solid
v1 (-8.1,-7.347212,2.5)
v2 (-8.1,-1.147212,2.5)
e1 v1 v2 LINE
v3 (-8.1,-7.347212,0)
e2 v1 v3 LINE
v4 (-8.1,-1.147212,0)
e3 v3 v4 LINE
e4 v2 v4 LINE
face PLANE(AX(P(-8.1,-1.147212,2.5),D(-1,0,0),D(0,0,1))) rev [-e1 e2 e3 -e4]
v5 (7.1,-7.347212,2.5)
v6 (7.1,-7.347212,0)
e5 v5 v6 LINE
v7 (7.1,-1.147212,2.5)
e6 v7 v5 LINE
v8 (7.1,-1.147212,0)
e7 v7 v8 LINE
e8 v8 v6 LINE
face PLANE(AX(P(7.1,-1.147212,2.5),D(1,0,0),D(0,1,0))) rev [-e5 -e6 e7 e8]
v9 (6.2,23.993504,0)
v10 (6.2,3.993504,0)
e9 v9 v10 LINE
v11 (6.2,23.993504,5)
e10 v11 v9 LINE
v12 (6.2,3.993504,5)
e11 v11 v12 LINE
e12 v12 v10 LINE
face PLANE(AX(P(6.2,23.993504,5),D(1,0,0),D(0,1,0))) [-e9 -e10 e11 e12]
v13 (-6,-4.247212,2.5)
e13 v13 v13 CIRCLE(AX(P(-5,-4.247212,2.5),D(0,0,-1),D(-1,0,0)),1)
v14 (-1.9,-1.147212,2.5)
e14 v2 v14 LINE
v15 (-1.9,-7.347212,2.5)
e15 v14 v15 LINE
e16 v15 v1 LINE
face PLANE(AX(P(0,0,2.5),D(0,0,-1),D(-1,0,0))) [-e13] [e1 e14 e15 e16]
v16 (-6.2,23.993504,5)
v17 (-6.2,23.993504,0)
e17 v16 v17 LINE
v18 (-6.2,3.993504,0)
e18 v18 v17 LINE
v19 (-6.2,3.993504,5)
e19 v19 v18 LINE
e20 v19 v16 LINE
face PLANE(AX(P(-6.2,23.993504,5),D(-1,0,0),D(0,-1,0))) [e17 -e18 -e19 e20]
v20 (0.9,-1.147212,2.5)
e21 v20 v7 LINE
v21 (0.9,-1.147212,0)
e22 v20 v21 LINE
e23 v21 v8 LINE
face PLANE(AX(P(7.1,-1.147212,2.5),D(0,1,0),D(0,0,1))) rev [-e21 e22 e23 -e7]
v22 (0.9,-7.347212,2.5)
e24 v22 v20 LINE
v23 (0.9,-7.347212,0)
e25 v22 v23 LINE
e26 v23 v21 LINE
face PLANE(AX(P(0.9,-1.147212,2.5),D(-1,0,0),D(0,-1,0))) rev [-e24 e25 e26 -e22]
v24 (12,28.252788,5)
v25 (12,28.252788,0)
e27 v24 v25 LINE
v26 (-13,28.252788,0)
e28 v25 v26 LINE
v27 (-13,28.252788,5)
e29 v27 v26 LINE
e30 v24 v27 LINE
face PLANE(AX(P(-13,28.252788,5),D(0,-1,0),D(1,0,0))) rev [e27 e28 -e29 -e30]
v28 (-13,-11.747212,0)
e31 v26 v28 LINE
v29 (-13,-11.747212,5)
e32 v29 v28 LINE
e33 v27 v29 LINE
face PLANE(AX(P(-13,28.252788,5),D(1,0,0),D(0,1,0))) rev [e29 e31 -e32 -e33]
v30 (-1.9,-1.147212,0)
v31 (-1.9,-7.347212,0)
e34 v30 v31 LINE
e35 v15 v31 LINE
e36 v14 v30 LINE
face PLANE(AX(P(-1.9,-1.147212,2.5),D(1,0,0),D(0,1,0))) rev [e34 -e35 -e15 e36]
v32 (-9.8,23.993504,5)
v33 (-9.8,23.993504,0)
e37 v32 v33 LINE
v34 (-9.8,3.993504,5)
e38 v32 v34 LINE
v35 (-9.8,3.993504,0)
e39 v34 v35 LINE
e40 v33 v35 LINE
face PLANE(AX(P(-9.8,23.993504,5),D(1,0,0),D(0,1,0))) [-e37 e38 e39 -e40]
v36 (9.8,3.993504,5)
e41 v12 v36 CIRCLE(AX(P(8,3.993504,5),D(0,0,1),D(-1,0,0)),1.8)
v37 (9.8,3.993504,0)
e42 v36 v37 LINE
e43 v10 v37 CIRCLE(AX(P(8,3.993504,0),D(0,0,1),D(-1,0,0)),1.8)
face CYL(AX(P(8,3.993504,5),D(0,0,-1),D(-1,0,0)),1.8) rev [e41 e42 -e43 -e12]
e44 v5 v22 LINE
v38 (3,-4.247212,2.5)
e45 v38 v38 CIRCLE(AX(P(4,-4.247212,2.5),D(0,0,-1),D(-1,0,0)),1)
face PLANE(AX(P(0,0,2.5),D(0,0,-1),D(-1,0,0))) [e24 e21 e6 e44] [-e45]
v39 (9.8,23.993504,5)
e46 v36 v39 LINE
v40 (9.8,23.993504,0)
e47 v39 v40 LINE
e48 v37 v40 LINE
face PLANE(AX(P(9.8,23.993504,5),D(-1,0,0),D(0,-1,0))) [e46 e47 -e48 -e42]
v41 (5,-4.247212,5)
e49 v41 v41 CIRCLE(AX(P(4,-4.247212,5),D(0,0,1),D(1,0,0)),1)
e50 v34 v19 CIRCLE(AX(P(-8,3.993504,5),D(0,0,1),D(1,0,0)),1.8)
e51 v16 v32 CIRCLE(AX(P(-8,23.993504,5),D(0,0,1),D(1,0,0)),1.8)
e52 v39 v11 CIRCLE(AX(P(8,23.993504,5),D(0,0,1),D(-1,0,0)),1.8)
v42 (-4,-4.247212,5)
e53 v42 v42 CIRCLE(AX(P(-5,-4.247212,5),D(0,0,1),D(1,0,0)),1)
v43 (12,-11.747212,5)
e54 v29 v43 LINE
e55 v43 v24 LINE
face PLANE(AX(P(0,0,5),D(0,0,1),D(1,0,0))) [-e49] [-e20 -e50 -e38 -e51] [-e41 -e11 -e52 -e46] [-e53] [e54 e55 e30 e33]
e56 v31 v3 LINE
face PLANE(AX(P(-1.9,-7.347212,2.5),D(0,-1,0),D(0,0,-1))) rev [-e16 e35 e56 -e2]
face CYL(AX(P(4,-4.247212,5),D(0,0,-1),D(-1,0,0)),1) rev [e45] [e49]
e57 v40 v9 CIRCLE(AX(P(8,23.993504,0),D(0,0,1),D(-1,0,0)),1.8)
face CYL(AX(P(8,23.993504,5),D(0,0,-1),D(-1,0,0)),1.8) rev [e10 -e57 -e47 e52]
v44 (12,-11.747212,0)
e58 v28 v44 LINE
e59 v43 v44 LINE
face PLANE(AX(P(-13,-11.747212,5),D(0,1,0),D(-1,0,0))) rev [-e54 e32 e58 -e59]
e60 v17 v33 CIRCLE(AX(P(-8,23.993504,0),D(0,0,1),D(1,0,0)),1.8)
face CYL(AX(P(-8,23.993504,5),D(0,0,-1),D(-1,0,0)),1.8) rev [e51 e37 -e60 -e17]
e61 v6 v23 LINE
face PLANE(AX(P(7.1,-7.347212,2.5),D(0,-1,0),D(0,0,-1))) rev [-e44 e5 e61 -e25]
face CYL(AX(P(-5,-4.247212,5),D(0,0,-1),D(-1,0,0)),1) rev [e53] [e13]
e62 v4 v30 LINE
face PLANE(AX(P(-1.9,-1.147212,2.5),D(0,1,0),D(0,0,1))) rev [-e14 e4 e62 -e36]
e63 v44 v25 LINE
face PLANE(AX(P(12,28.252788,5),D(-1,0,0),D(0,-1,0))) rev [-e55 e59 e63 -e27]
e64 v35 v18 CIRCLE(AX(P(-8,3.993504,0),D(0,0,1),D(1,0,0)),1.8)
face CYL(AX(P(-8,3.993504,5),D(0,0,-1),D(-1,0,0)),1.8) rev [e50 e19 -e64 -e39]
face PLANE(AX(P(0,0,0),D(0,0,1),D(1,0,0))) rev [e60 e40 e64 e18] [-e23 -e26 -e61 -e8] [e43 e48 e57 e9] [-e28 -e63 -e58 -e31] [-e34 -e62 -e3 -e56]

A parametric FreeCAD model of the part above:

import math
import FreeCAD as App
import Part
import Sketcher
Q = App.Units.Quantity


def add_polygon(sketch, points):
    """Adds a closed chain of lines whose ends are joined by coincident constraints."""
    first, n = sketch.GeometryCount, len(points)
    for a, b in zip(points, points[1:] + points[:1]):
        sketch.addGeometry(Part.LineSegment(App.Vector(*a, 0), App.Vector(*b, 0)), False)
    for i in range(n):
        sketch.addConstraint(Sketcher.Constraint("Coincident", first + i, 2, first + (i + 1) % n, 1))

doc = App.newDocument("Part")
body = doc.addObject("PartDesign::Body", "Body")

# Sketch on XY plane
sketch1 = body.newObject("Sketcher::SketchObject", "Sketch")
sketch1.AttachmentSupport = (doc.getObject("XY_Plane"), [""])
sketch1.MapMode = "FlatFace"
add_polygon(sketch1, [(-13, 28.3), (-13, -11.7), (12, -11.7), (12, 28.3)])  # lines 0-3
sketch1.addGeometry(Part.Circle(App.Vector(-5, -4.2, 0), App.Vector(0, 0, 1), 1), False)  # 4
sketch1.addGeometry(Part.Circle(App.Vector(4, -4.2, 0), App.Vector(0, 0, 1), 1), False)  # 5
sketch1.addGeometry(Part.ArcOfCircle(Part.Circle(App.Vector(-8, 24, 0), App.Vector(0, 0, 1), 1.8), math.radians(0), math.radians(180)), False)  # 6
sketch1.addGeometry(Part.LineSegment(App.Vector(-6.2, 24, 0), App.Vector(-6.2, 4, 0)), False)  # 7
sketch1.addGeometry(Part.ArcOfCircle(Part.Circle(App.Vector(-8, 4, 0), App.Vector(0, 0, 1), 1.8), math.radians(180), math.radians(360)), False)  # 8
sketch1.addGeometry(Part.LineSegment(App.Vector(-9.8, 4, 0), App.Vector(-9.8, 24, 0)), False)  # 9
sketch1.addGeometry(Part.LineSegment(App.Vector(6.2, 4, 0), App.Vector(6.2, 24, 0)), False)  # 10
sketch1.addGeometry(Part.ArcOfCircle(Part.Circle(App.Vector(8, 24, 0), App.Vector(0, 0, 1), 1.8), math.radians(0), math.radians(180)), False)  # 11
sketch1.addGeometry(Part.LineSegment(App.Vector(9.8, 24, 0), App.Vector(9.8, 4, 0)), False)  # 12
sketch1.addGeometry(Part.ArcOfCircle(Part.Circle(App.Vector(8, 4, 0), App.Vector(0, 0, 1), 1.8), math.radians(180), math.radians(360)), False)  # 13
sketch1.addConstraint([
    Sketcher.Constraint("Tangent", 6, 1, 7, 1),
    Sketcher.Constraint("Tangent", 7, 2, 8, 2),
    Sketcher.Constraint("Tangent", 8, 1, 9, 1),
    Sketcher.Constraint("Tangent", 9, 2, 6, 2),
    Sketcher.Constraint("Tangent", 10, 2, 11, 2),
    Sketcher.Constraint("Tangent", 11, 1, 12, 1),
    Sketcher.Constraint("Tangent", 12, 2, 13, 2),
    Sketcher.Constraint("Tangent", 13, 1, 10, 1),
    Sketcher.Constraint("Vertical", 0),
    Sketcher.Constraint("Horizontal", 1),
    Sketcher.Constraint("Vertical", 2),
    Sketcher.Constraint("Horizontal", 3),
    Sketcher.Constraint("Vertical", 7),
    Sketcher.Constraint("Vertical", 9),
    Sketcher.Constraint("Vertical", 10),
    Sketcher.Constraint("Vertical", 12),
    Sketcher.Constraint("Equal", 4, 5),
    Sketcher.Constraint("Equal", 8, 11),
    Sketcher.Constraint("Symmetric", 6, 3, 11, 3, -2),
    Sketcher.Constraint("Horizontal", 4, 3, 5, 3),
    Sketcher.Constraint("Horizontal", 8, 3, 13, 3),
    Sketcher.Constraint("Diameter", 4, Q("2 mm")),
    Sketcher.Constraint("Radius", 6, Q("1.8 mm")),
    Sketcher.Constraint("DistanceX", 1, 1, 1, 2, Q("25 mm")),
    Sketcher.Constraint("DistanceY", 0, 2, 0, 1, Q("40 mm")),
    Sketcher.Constraint("DistanceY", 7, 2, 7, 1, Q("20 mm")),
    Sketcher.Constraint("DistanceX", 4, 3, -1, 1, Q("5 mm")),
    Sketcher.Constraint("DistanceX", -1, 1, 5, 3, Q("4 mm")),
    Sketcher.Constraint("DistanceX", 6, 3, -1, 1, Q("8 mm")),
    Sketcher.Constraint("DistanceX", 0, 2, -1, 1, Q("13 mm")),
    Sketcher.Constraint("DistanceY", 0, 2, 4, 3, Q("7.5 mm")),
    Sketcher.Constraint("DistanceY", 4, 3, -1, 1, Q("4.247212 mm")),
    Sketcher.Constraint("DistanceY", -1, 1, 6, 3, Q("23.993504 mm")),
])
pad1 = body.newObject("PartDesign::Pad", "Pad")
pad1.Profile = sketch1
pad1.Length = 5

# Sketch on XY plane
sketch2 = body.newObject("Sketcher::SketchObject", "Sketch001")
sketch2.AttachmentSupport = (doc.getObject("XY_Plane"), [""])
sketch2.MapMode = "FlatFace"
add_polygon(sketch2, [(7, -1), (7, -7), (1, -7), (1, -1)])  # lines 0-3
add_polygon(sketch2, [(-2, -1), (-2, -7), (-8, -7), (-8, -1)])  # lines 4-7
sketch2.addConstraint([
    Sketcher.Constraint("Vertical", 0),
    Sketcher.Constraint("Horizontal", 1),
    Sketcher.Constraint("Vertical", 2),
    Sketcher.Constraint("Horizontal", 3),
    Sketcher.Constraint("Vertical", 4),
    Sketcher.Constraint("Horizontal", 5),
    Sketcher.Constraint("Vertical", 6),
    Sketcher.Constraint("Horizontal", 7),
    Sketcher.Constraint("Horizontal", 1, 2, 4, 2),
    Sketcher.Constraint("Horizontal", 3, 2, 6, 2),
    Sketcher.Constraint("Equal", 3, 5),
    Sketcher.Constraint("Equal", 7, 0),
    Sketcher.Constraint("DistanceX", 1, 2, 1, 1, Q("6.2 mm")),
    Sketcher.Constraint("DistanceX", 4, 2, 0, 2, Q("9 mm")),
    Sketcher.Constraint("DistanceX", -1, 1, 0, 2, Q("7.1 mm")),
    Sketcher.Constraint("DistanceY", 0, 2, -1, 1, Q("7.347212 mm")),
])
pocket1 = body.newObject("PartDesign::Pocket", "Pocket")
pocket1.Profile = sketch2
pocket1.Length = 2.5
pocket1.Reversed = True

doc.recompute()
